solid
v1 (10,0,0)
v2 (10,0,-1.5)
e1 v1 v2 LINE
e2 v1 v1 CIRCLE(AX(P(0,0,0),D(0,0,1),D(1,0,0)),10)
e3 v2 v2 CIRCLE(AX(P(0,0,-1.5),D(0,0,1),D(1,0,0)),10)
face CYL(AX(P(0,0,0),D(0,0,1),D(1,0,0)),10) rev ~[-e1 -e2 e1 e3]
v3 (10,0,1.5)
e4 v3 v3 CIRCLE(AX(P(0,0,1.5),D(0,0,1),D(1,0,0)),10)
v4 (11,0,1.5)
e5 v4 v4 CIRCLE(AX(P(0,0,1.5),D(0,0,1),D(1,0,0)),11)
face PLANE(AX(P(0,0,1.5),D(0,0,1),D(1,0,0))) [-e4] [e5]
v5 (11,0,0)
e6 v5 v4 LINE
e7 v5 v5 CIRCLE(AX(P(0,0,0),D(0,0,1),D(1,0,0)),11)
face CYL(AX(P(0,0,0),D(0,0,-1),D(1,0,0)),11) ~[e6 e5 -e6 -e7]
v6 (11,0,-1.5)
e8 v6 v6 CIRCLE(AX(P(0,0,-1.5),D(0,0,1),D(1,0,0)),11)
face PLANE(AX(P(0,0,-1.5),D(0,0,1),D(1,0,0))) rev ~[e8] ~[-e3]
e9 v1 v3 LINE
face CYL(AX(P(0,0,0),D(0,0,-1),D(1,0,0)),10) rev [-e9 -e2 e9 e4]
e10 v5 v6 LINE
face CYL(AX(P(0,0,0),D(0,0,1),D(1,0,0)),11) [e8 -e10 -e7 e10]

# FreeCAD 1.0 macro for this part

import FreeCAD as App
import Part
import Sketcher
from FreeCAD import Vector

doc = App.newDocument("Part")
params = doc.addObject("Spreadsheet::Sheet", "Params")
for row, (alias, value) in enumerate([
    ("sketch1_diameter", "22 mm"),
    ("sketch1_diameter2", "20 mm"),
    ("pad1_length", "3 mm"),
], start=1):
    params.set(f"A{row}", alias)
    params.set(f"B{row}", "=" + value)
    params.setAlias(f"B{row}", alias)

body = doc.addObject("PartDesign::Body", "Body")

# Sketch on XY plane
sketch1 = body.newObject("Sketcher::SketchObject", "Sketch")
sketch1.AttachmentSupport = (doc.getObject("XY_Plane"), [""])
sketch1.MapMode = "FlatFace"
sketch1.addGeometry([
    Part.Circle(Vector(0, 0, 0), Vector(0, 0, 1), 11),
    Part.Circle(Vector(0, 0, 0), Vector(0, 0, 1), 10),
], False)
sketch1.addConstraint([
    Sketcher.Constraint("Coincident", 0, 3, -1, 1),
    Sketcher.Constraint("Coincident", 1, 3, -1, 1),
    Sketcher.Constraint("Diameter", 0, 22.0),
    Sketcher.Constraint("Diameter", 1, 20.0),
])
sketch1.setExpression("Constraints[2]", "Params.sketch1_diameter")
sketch1.setExpression("Constraints[3]", "Params.sketch1_diameter2")
pad1 = body.newObject("PartDesign::Pad", "Pad")
pad1.Profile = sketch1
pad1.setExpression("Length", "Params.pad1_length")
pad1.Midplane = True

doc.recompute()
